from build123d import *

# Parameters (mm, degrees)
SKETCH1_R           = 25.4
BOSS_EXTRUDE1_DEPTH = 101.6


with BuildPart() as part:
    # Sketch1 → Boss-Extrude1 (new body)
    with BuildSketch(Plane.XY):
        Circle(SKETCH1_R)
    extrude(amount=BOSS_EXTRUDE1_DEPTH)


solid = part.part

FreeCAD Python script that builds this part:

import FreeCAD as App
import Part
import Sketcher
from FreeCAD import Vector
Q = App.Units.Quantity

doc = App.newDocument("Part")
body = doc.addObject("PartDesign::Body", "Body")

sketch1 = body.newObject("Sketcher::SketchObject", "Sketch")
sketch1.AttachmentSupport = (doc.getObject("XY_Plane"), [""])
sketch1.MapMode = "FlatFace"
sketch1.addGeometry(Part.Circle(Vector(0, 0, 0), Vector(0, 0, 1), 25), False)
sketch1.addConstraint(Sketcher.Constraint("Coincident", 0, 3, -1, 1))
sketch1.addConstraint(Sketcher.Constraint("Diameter", 0, Q("2 in")))
pad1 = body.newObject("PartDesign::Pad", "Pad")
pad1.Profile = sketch1
pad1.Length = Q("4 in")

doc.recompute()
